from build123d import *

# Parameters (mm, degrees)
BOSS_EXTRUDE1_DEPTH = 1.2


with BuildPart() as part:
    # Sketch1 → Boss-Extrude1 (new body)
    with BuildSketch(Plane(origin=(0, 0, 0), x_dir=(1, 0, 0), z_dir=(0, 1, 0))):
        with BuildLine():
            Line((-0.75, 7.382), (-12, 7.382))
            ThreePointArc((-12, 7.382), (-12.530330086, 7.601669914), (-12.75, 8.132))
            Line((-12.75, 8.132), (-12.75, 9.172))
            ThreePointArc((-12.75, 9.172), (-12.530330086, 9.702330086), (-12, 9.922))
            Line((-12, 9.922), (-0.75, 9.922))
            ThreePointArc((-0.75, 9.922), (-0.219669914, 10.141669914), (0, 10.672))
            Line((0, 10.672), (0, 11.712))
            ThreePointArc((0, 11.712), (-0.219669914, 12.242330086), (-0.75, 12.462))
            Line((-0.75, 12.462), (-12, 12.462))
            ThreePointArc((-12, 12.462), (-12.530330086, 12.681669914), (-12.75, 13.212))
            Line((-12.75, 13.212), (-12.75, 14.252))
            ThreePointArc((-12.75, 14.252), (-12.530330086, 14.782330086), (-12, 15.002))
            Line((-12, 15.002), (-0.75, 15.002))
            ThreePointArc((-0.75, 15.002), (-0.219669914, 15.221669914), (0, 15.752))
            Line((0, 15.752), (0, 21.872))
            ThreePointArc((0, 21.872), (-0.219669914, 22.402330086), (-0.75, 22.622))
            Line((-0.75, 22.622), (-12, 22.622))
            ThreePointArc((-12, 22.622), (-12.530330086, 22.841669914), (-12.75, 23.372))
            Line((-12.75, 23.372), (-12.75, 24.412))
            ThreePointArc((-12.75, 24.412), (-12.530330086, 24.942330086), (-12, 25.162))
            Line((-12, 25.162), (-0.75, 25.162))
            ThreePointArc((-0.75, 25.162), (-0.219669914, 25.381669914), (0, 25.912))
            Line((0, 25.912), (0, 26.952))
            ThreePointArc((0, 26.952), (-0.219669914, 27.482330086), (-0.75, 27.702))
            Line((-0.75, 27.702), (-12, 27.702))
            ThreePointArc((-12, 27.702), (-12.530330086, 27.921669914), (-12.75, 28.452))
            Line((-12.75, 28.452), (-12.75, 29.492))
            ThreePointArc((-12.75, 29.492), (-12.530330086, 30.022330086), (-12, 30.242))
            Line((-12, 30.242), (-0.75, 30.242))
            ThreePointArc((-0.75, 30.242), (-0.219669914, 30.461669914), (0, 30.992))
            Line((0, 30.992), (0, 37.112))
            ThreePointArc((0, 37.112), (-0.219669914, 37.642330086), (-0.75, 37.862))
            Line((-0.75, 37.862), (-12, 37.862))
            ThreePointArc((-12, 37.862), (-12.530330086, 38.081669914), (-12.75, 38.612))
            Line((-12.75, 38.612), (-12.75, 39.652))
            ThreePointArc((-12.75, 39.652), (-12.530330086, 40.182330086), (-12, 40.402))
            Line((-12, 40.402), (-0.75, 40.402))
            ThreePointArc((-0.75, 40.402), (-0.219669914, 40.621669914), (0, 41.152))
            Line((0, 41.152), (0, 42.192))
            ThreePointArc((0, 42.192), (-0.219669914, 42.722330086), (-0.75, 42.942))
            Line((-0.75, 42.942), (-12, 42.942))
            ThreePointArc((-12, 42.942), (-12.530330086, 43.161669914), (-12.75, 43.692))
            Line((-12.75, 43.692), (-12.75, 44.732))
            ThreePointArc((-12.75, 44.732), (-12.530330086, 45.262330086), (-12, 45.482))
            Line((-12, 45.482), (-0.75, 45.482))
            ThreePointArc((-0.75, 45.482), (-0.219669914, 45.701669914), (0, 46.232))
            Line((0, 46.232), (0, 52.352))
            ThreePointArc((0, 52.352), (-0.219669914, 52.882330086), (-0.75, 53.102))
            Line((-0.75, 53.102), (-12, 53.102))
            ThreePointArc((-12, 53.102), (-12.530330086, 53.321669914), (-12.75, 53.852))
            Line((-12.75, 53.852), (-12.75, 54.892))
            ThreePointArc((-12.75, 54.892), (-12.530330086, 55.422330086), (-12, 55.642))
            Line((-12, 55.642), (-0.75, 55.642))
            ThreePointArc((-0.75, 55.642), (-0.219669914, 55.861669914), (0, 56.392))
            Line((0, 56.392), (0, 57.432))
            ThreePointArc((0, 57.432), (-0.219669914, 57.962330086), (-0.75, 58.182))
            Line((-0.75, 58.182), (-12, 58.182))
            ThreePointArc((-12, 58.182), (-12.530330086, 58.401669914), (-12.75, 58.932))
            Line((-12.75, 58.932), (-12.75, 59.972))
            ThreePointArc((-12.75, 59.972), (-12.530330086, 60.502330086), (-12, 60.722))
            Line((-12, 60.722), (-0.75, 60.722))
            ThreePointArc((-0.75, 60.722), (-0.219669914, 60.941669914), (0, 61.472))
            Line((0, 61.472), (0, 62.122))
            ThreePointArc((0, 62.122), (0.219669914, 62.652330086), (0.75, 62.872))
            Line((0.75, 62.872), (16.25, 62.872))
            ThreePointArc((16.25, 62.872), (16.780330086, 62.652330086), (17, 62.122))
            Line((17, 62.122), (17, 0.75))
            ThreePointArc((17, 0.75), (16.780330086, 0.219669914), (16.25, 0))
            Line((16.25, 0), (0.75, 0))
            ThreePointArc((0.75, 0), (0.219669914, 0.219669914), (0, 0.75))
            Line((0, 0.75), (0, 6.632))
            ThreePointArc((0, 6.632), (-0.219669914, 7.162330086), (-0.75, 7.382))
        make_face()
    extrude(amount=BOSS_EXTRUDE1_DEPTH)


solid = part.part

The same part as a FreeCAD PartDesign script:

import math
import FreeCAD as App
import Part
import Sketcher
from FreeCAD import Vector

doc = App.newDocument("Part")
body = doc.addObject("PartDesign::Body", "Body")

# Sketch on XZ plane
sketch1 = body.newObject("Sketcher::SketchObject", "Sketch")
sketch1.AttachmentSupport = (doc.getObject("XZ_Plane"), [""])
sketch1.MapMode = "FlatFace"
sketch1.addGeometry([
    Part.LineSegment(Vector(-12, -7.382, 0), Vector(-0.75, -7.382, 0)),  # 0
    Part.ArcOfCircle(Part.Circle(Vector(-0.75, -6.632, 0), Vector(0, 0, 1), 0.75), math.radians(-90), math.radians(0)),  # 1
    Part.LineSegment(Vector(0, -6.632, 0), Vector(0, -0.75, 0)),  # 2
    Part.ArcOfCircle(Part.Circle(Vector(0.75, -0.75, 0), Vector(0, 0, 1), 0.75), math.radians(90), math.radians(180)),  # 3
    Part.LineSegment(Vector(0.75, 0, 0), Vector(16.25, 0, 0)),  # 4
    Part.ArcOfCircle(Part.Circle(Vector(16.25, -0.75, 0), Vector(0, 0, 1), 0.75), math.radians(0), math.radians(90)),  # 5
    Part.LineSegment(Vector(17, -0.75, 0), Vector(17, -62.122, 0)),  # 6
    Part.ArcOfCircle(Part.Circle(Vector(16.25, -62.122, 0), Vector(0, 0, 1), 0.75), math.radians(-90), math.radians(0)),  # 7
    Part.LineSegment(Vector(16.25, -62.872, 0), Vector(0.75, -62.872, 0)),  # 8
    Part.ArcOfCircle(Part.Circle(Vector(0.75, -62.122, 0), Vector(0, 0, 1), 0.75), math.radians(180), math.radians(270)),  # 9
    Part.LineSegment(Vector(0, -62.122, 0), Vector(0, -61.472, 0)),  # 10
    Part.ArcOfCircle(Part.Circle(Vector(-0.75, -61.472, 0), Vector(0, 0, 1), 0.75), math.radians(0), math.radians(90)),  # 11
    Part.LineSegment(Vector(-0.75, -60.722, 0), Vector(-12, -60.722, 0)),  # 12
    Part.ArcOfCircle(Part.Circle(Vector(-12, -59.972, 0), Vector(0, 0, 1), 0.75), math.radians(180), math.radians(270)),  # 13
    Part.LineSegment(Vector(-12.75, -59.972, 0), Vector(-12.75, -58.932, 0)),  # 14
    Part.ArcOfCircle(Part.Circle(Vector(-12, -58.932, 0), Vector(0, 0, 1), 0.75), math.radians(90), math.radians(180)),  # 15
    Part.LineSegment(Vector(-12, -58.182, 0), Vector(-0.75, -58.182, 0)),  # 16
    Part.ArcOfCircle(Part.Circle(Vector(-0.75, -57.432, 0), Vector(0, 0, 1), 0.75), math.radians(-90), math.radians(0)),  # 17
    Part.LineSegment(Vector(0, -57.432, 0), Vector(0, -56.392, 0)),  # 18
    Part.ArcOfCircle(Part.Circle(Vector(-0.75, -56.392, 0), Vector(0, 0, 1), 0.75), math.radians(0), math.radians(90)),  # 19
    Part.LineSegment(Vector(-0.75, -55.642, 0), Vector(-12, -55.642, 0)),  # 20
    Part.ArcOfCircle(Part.Circle(Vector(-12, -54.892, 0), Vector(0, 0, 1), 0.75), math.radians(180), math.radians(270)),  # 21
    Part.LineSegment(Vector(-12.75, -54.892, 0), Vector(-12.75, -53.852, 0)),  # 22
    Part.ArcOfCircle(Part.Circle(Vector(-12, -53.852, 0), Vector(0, 0, 1), 0.75), math.radians(90), math.radians(180)),  # 23
    Part.LineSegment(Vector(-12, -53.102, 0), Vector(-0.75, -53.102, 0)),  # 24
    Part.ArcOfCircle(Part.Circle(Vector(-0.75, -52.352, 0), Vector(0, 0, 1), 0.75), math.radians(-90), math.radians(0)),  # 25
    Part.LineSegment(Vector(0, -52.352, 0), Vector(0, -46.232, 0)),  # 26
    Part.ArcOfCircle(Part.Circle(Vector(-0.75, -46.232, 0), Vector(0, 0, 1), 0.75), math.radians(0), math.radians(90)),  # 27
    Part.LineSegment(Vector(-0.75, -45.482, 0), Vector(-12, -45.482, 0)),  # 28
    Part.ArcOfCircle(Part.Circle(Vector(-12, -44.732, 0), Vector(0, 0, 1), 0.75), math.radians(180), math.radians(270)),  # 29
    Part.LineSegment(Vector(-12.75, -44.732, 0), Vector(-12.75, -43.692, 0)),  # 30
    Part.ArcOfCircle(Part.Circle(Vector(-12, -43.692, 0), Vector(0, 0, 1), 0.75), math.radians(90), math.radians(180)),  # 31
    Part.LineSegment(Vector(-12, -42.942, 0), Vector(-0.75, -42.942, 0)),  # 32
    Part.ArcOfCircle(Part.Circle(Vector(-0.75, -42.192, 0), Vector(0, 0, 1), 0.75), math.radians(-90), math.radians(0)),  # 33
    Part.LineSegment(Vector(0, -42.192, 0), Vector(0, -41.152, 0)),  # 34
    Part.ArcOfCircle(Part.Circle(Vector(-0.75, -41.152, 0), Vector(0, 0, 1), 0.75), math.radians(0), math.radians(90)),  # 35
    Part.LineSegment(Vector(-0.75, -40.402, 0), Vector(-12, -40.402, 0)),  # 36
    Part.ArcOfCircle(Part.Circle(Vector(-12, -39.652, 0), Vector(0, 0, 1), 0.75), math.radians(180), math.radians(270)),  # 37
    Part.LineSegment(Vector(-12.75, -39.652, 0), Vector(-12.75, -38.612, 0)),  # 38
    Part.ArcOfCircle(Part.Circle(Vector(-12, -38.612, 0), Vector(0, 0, 1), 0.75), math.radians(90), math.radians(180)),  # 39
    Part.LineSegment(Vector(-12, -37.862, 0), Vector(-0.75, -37.862, 0)),  # 40
    Part.ArcOfCircle(Part.Circle(Vector(-0.75, -37.112, 0), Vector(0, 0, 1), 0.75), math.radians(-90), math.radians(0)),  # 41
    Part.LineSegment(Vector(0, -37.112, 0), Vector(0, -30.992, 0)),  # 42
    Part.ArcOfCircle(Part.Circle(Vector(-0.75, -30.992, 0), Vector(0, 0, 1), 0.75), math.radians(0), math.radians(90)),  # 43
    Part.LineSegment(Vector(-0.75, -30.242, 0), Vector(-12, -30.242, 0)),  # 44
    Part.ArcOfCircle(Part.Circle(Vector(-12, -29.492, 0), Vector(0, 0, 1), 0.75), math.radians(180), math.radians(270)),  # 45
    Part.LineSegment(Vector(-12.75, -29.492, 0), Vector(-12.75, -28.452, 0)),  # 46
    Part.ArcOfCircle(Part.Circle(Vector(-12, -28.452, 0), Vector(0, 0, 1), 0.75), math.radians(90), math.radians(180)),  # 47
    Part.LineSegment(Vector(-12, -27.702, 0), Vector(-0.75, -27.702, 0)),  # 48
    Part.ArcOfCircle(Part.Circle(Vector(-0.75, -26.952, 0), Vector(0, 0, 1), 0.75), math.radians(-90), math.radians(0)),  # 49
    Part.LineSegment(Vector(0, -26.952, 0), Vector(0, -25.912, 0)),  # 50
    Part.ArcOfCircle(Part.Circle(Vector(-0.75, -25.912, 0), Vector(0, 0, 1), 0.75), math.radians(0), math.radians(90)),  # 51
    Part.LineSegment(Vector(-0.75, -25.162, 0), Vector(-12, -25.162, 0)),  # 52
    Part.ArcOfCircle(Part.Circle(Vector(-12, -24.412, 0), Vector(0, 0, 1), 0.75), math.radians(180), math.radians(270)),  # 53
    Part.LineSegment(Vector(-12.75, -24.412, 0), Vector(-12.75, -23.372, 0)),  # 54
    Part.ArcOfCircle(Part.Circle(Vector(-12, -23.372, 0), Vector(0, 0, 1), 0.75), math.radians(90), math.radians(180)),  # 55
    Part.LineSegment(Vector(-12, -22.622, 0), Vector(-0.75, -22.622, 0)),  # 56
    Part.ArcOfCircle(Part.Circle(Vector(-0.75, -21.872, 0), Vector(0, 0, 1), 0.75), math.radians(-90), math.radians(0)),  # 57
    Part.LineSegment(Vector(0, -21.872, 0), Vector(0, -15.752, 0)),  # 58
    Part.ArcOfCircle(Part.Circle(Vector(-0.75, -15.752, 0), Vector(0, 0, 1), 0.75), math.radians(0), math.radians(90)),  # 59
    Part.LineSegment(Vector(-0.75, -15.002, 0), Vector(-12, -15.002, 0)),  # 60
    Part.ArcOfCircle(Part.Circle(Vector(-12, -14.252, 0), Vector(0, 0, 1), 0.75), math.radians(180), math.radians(270)),  # 61
    Part.LineSegment(Vector(-12.75, -14.252, 0), Vector(-12.75, -13.212, 0)),  # 62
    Part.ArcOfCircle(Part.Circle(Vector(-12, -13.212, 0), Vector(0, 0, 1), 0.75), math.radians(90), math.radians(180)),  # 63
    Part.LineSegment(Vector(-12, -12.462, 0), Vector(-0.75, -12.462, 0)),  # 64
    Part.ArcOfCircle(Part.Circle(Vector(-0.75, -11.712, 0), Vector(0, 0, 1), 0.75), math.radians(-90), math.radians(0)),  # 65
    Part.LineSegment(Vector(0, -11.712, 0), Vector(0, -10.672, 0)),  # 66
    Part.ArcOfCircle(Part.Circle(Vector(-0.75, -10.672, 0), Vector(0, 0, 1), 0.75), math.radians(0), math.radians(90)),  # 67
    Part.LineSegment(Vector(-0.75, -9.922, 0), Vector(-12, -9.922, 0)),  # 68
    Part.ArcOfCircle(Part.Circle(Vector(-12, -9.172, 0), Vector(0, 0, 1), 0.75), math.radians(180), math.radians(270)),  # 69
    Part.LineSegment(Vector(-12.75, -9.172, 0), Vector(-12.75, -8.132, 0)),  # 70
    Part.ArcOfCircle(Part.Circle(Vector(-12, -8.132, 0), Vector(0, 0, 1), 0.75), math.radians(90), math.radians(180)),  # 71
], False)
sketch1.addConstraint([
    Sketcher.Constraint("Tangent", 0, 2, 1, 1),
    Sketcher.Constraint("Tangent", 1, 2, 2, 1),
    Sketcher.Constraint("Tangent", 2, 2, 3, 2),
    Sketcher.Constraint("Tangent", 3, 1, 4, 1),
    Sketcher.Constraint("Tangent", 4, 2, 5, 2),
    Sketcher.Constraint("Tangent", 5, 1, 6, 1),
    Sketcher.Constraint("Tangent", 6, 2, 7, 2),
    Sketcher.Constraint("Tangent", 7, 1, 8, 1),
    Sketcher.Constraint("Tangent", 8, 2, 9, 2),
    Sketcher.Constraint("Tangent", 9, 1, 10, 1),
    Sketcher.Constraint("Tangent", 10, 2, 11, 1),
    Sketcher.Constraint("Tangent", 11, 2, 12, 1),
    Sketcher.Constraint("Tangent", 12, 2, 13, 2),
    Sketcher.Constraint("Tangent", 13, 1, 14, 1),
    Sketcher.Constraint("Tangent", 14, 2, 15, 2),
    Sketcher.Constraint("Tangent", 15, 1, 16, 1),
    Sketcher.Constraint("Tangent", 16, 2, 17, 1),
    Sketcher.Constraint("Tangent", 17, 2, 18, 1),
    Sketcher.Constraint("Tangent", 18, 2, 19, 1),
    Sketcher.Constraint("Tangent", 19, 2, 20, 1),
    Sketcher.Constraint("Tangent", 20, 2, 21, 2),
    Sketcher.Constraint("Tangent", 21, 1, 22, 1),
    Sketcher.Constraint("Tangent", 22, 2, 23, 2),
    Sketcher.Constraint("Tangent", 23, 1, 24, 1),
    Sketcher.Constraint("Tangent", 24, 2, 25, 1),
    Sketcher.Constraint("Tangent", 25, 2, 26, 1),
    Sketcher.Constraint("Tangent", 26, 2, 27, 1),
    Sketcher.Constraint("Tangent", 27, 2, 28, 1),
    Sketcher.Constraint("Tangent", 28, 2, 29, 2),
    Sketcher.Constraint("Tangent", 29, 1, 30, 1),
    Sketcher.Constraint("Tangent", 30, 2, 31, 2),
    Sketcher.Constraint("Tangent", 31, 1, 32, 1),
    Sketcher.Constraint("Tangent", 32, 2, 33, 1),
    Sketcher.Constraint("Tangent", 33, 2, 34, 1),
    Sketcher.Constraint("Tangent", 34, 2, 35, 1),
    Sketcher.Constraint("Tangent", 35, 2, 36, 1),
    Sketcher.Constraint("Tangent", 36, 2, 37, 2),
    Sketcher.Constraint("Tangent", 37, 1, 38, 1),
    Sketcher.Constraint("Tangent", 38, 2, 39, 2),
    Sketcher.Constraint("Tangent", 39, 1, 40, 1),
    Sketcher.Constraint("Tangent", 40, 2, 41, 1),
    Sketcher.Constraint("Tangent", 41, 2, 42, 1),
    Sketcher.Constraint("Tangent", 42, 2, 43, 1),
    Sketcher.Constraint("Tangent", 43, 2, 44, 1),
    Sketcher.Constraint("Tangent", 44, 2, 45, 2),
    Sketcher.Constraint("Tangent", 45, 1, 46, 1),
    Sketcher.Constraint("Tangent", 46, 2, 47, 2),
    Sketcher.Constraint("Tangent", 47, 1, 48, 1),
    Sketcher.Constraint("Tangent", 48, 2, 49, 1),
    Sketcher.Constraint("Tangent", 49, 2, 50, 1),
    Sketcher.Constraint("Tangent", 50, 2, 51, 1),
    Sketcher.Constraint("Tangent", 51, 2, 52, 1),
    Sketcher.Constraint("Tangent", 52, 2, 53, 2),
    Sketcher.Constraint("Tangent", 53, 1, 54, 1),
    Sketcher.Constraint("Tangent", 54, 2, 55, 2),
    Sketcher.Constraint("Tangent", 55, 1, 56, 1),
    Sketcher.Constraint("Tangent", 56, 2, 57, 1),
    Sketcher.Constraint("Tangent", 57, 2, 58, 1),
    Sketcher.Constraint("Tangent", 58, 2, 59, 1),
    Sketcher.Constraint("Tangent", 59, 2, 60, 1),
    Sketcher.Constraint("Tangent", 60, 2, 61, 2),
    Sketcher.Constraint("Tangent", 61, 1, 62, 1),
    Sketcher.Constraint("Tangent", 62, 2, 63, 2),
    Sketcher.Constraint("Tangent", 63, 1, 64, 1),
    Sketcher.Constraint("Tangent", 64, 2, 65, 1),
    Sketcher.Constraint("Tangent", 65, 2, 66, 1),
    Sketcher.Constraint("Tangent", 66, 2, 67, 1),
    Sketcher.Constraint("Tangent", 67, 2, 68, 1),
    Sketcher.Constraint("Tangent", 68, 2, 69, 2),
    Sketcher.Constraint("Tangent", 69, 1, 70, 1),
    Sketcher.Constraint("Tangent", 70, 2, 71, 2),
    Sketcher.Constraint("Tangent", 71, 1, 0, 1),
    Sketcher.Constraint("Horizontal", 0),
    Sketcher.Constraint("Vertical", 2),
    Sketcher.Constraint("Horizontal", 4),
    Sketcher.Constraint("Vertical", 6),
    Sketcher.Constraint("Horizontal", 8),
    Sketcher.Constraint("Vertical", 10),
    Sketcher.Constraint("Horizontal", 12),
    Sketcher.Constraint("Vertical", 14),
    Sketcher.Constraint("Horizontal", 16),
    Sketcher.Constraint("Vertical", 18),
    Sketcher.Constraint("Horizontal", 20),
    Sketcher.Constraint("Vertical", 22),
    Sketcher.Constraint("Horizontal", 24),
    Sketcher.Constraint("Vertical", 26),
    Sketcher.Constraint("Horizontal", 28),
    Sketcher.Constraint("Vertical", 30),
    Sketcher.Constraint("Horizontal", 32),
    Sketcher.Constraint("Vertical", 34),
    Sketcher.Constraint("Horizontal", 36),
    Sketcher.Constraint("Vertical", 38),
    Sketcher.Constraint("Horizontal", 40),
    Sketcher.Constraint("Vertical", 42),
    Sketcher.Constraint("Horizontal", 44),
    Sketcher.Constraint("Vertical", 46),
    Sketcher.Constraint("Horizontal", 48),
    Sketcher.Constraint("Vertical", 50),
    Sketcher.Constraint("Horizontal", 52),
    Sketcher.Constraint("Vertical", 54),
    Sketcher.Constraint("Horizontal", 56),
    Sketcher.Constraint("Vertical", 58),
    Sketcher.Constraint("Horizontal", 60),
    Sketcher.Constraint("Vertical", 62),
    Sketcher.Constraint("Horizontal", 64),
    Sketcher.Constraint("Vertical", 66),
    Sketcher.Constraint("Horizontal", 68),
    Sketcher.Constraint("Vertical", 70),
    Sketcher.Constraint("Equal", 1, 3),
    Sketcher.Constraint("Equal", 3, 5),
    Sketcher.Constraint("Equal", 5, 7),
    Sketcher.Constraint("Equal", 7, 9),
    Sketcher.Constraint("Equal", 9, 11),
    Sketcher.Constraint("Equal", 11, 13),
    Sketcher.Constraint("Equal", 13, 15),
    Sketcher.Constraint("Equal", 15, 17),
    Sketcher.Constraint("Equal", 17, 19),
    Sketcher.Constraint("Equal", 19, 21),
    Sketcher.Constraint("Equal", 21, 23),
    Sketcher.Constraint("Equal", 23, 25),
    Sketcher.Constraint("Equal", 25, 27),
    Sketcher.Constraint("Equal", 27, 29),
    Sketcher.Constraint("Equal", 29, 31),
    Sketcher.Constraint("Equal", 31, 33),
    Sketcher.Constraint("Equal", 33, 35),
    Sketcher.Constraint("Equal", 35, 37),
    Sketcher.Constraint("Equal", 37, 39),
    Sketcher.Constraint("Equal", 39, 41),
    Sketcher.Constraint("Equal", 41, 43),
    Sketcher.Constraint("Equal", 43, 45),
    Sketcher.Constraint("Equal", 45, 47),
    Sketcher.Constraint("Equal", 47, 49),
    Sketcher.Constraint("Equal", 49, 51),
    Sketcher.Constraint("Equal", 51, 53),
    Sketcher.Constraint("Equal", 53, 55),
    Sketcher.Constraint("Equal", 55, 57),
    Sketcher.Constraint("Equal", 57, 59),
    Sketcher.Constraint("Equal", 59, 61),
    Sketcher.Constraint("Equal", 61, 63),
    Sketcher.Constraint("Equal", 63, 65),
    Sketcher.Constraint("Equal", 65, 67),
    Sketcher.Constraint("Equal", 67, 69),
    Sketcher.Constraint("Equal", 69, 71),
    Sketcher.Constraint("PointOnObject", 1, 2, -2),
    Sketcher.Constraint("PointOnObject", 3, 1, -1),
    Sketcher.Constraint("PointOnObject", 9, 1, -2),
    Sketcher.Constraint("PointOnObject", 17, 2, -2),
    Sketcher.Constraint("PointOnObject", 25, 2, -2),
    Sketcher.Constraint("PointOnObject", 33, 2, -2),
    Sketcher.Constraint("PointOnObject", 41, 2, -2),
    Sketcher.Constraint("PointOnObject", 49, 2, -2),
    Sketcher.Constraint("PointOnObject", 57, 2, -2),
    Sketcher.Constraint("PointOnObject", 65, 2, -2),
    Sketcher.Constraint("Vertical", 15, 3, 21, 3),
    Sketcher.Constraint("Vertical", 23, 3, 29, 3),
    Sketcher.Constraint("Vertical", 31, 3, 37, 3),
    Sketcher.Constraint("Vertical", 39, 3, 45, 3),
    Sketcher.Constraint("Vertical", 47, 3, 53, 3),
    Sketcher.Constraint("Vertical", 55, 3, 61, 3),
    Sketcher.Constraint("Vertical", 63, 3, 69, 3),
    Sketcher.Constraint("Equal", 14, 18),
    Sketcher.Constraint("Equal", 18, 22),
    Sketcher.Constraint("Equal", 22, 30),
    Sketcher.Constraint("Equal", 30, 34),
    Sketcher.Constraint("Equal", 34, 38),
    Sketcher.Constraint("Equal", 26, 42),
    Sketcher.Constraint("Equal", 38, 46),
    Sketcher.Constraint("Equal", 46, 50),
    Sketcher.Constraint("Equal", 50, 54),
    Sketcher.Constraint("Equal", 42, 58),
    Sketcher.Constraint("Equal", 54, 62),
    Sketcher.Constraint("Equal", 62, 66),
    Sketcher.Constraint("Equal", 66, 70),
    Sketcher.Constraint("Radius", 1, 0.75),
    Sketcher.Constraint("DistanceX", 4, 1, 4, 2, 15.5),
    Sketcher.Constraint("DistanceX", 13, 3, -1, 1, 12.0),
    Sketcher.Constraint("DistanceY", 10, 1, 10, 2, 0.65),
    Sketcher.Constraint("DistanceY", 14, 1, 14, 2, 1.04),
    Sketcher.Constraint("DistanceY", 26, 1, 26, 2, 6.12),
    Sketcher.Constraint("DistanceY", 2, 1, 2, 2, 5.882),
])
pad1 = body.newObject("PartDesign::Pad", "Pad")
pad1.Profile = sketch1
pad1.Length = 1.2
pad1.Reversed = True

doc.recompute()
